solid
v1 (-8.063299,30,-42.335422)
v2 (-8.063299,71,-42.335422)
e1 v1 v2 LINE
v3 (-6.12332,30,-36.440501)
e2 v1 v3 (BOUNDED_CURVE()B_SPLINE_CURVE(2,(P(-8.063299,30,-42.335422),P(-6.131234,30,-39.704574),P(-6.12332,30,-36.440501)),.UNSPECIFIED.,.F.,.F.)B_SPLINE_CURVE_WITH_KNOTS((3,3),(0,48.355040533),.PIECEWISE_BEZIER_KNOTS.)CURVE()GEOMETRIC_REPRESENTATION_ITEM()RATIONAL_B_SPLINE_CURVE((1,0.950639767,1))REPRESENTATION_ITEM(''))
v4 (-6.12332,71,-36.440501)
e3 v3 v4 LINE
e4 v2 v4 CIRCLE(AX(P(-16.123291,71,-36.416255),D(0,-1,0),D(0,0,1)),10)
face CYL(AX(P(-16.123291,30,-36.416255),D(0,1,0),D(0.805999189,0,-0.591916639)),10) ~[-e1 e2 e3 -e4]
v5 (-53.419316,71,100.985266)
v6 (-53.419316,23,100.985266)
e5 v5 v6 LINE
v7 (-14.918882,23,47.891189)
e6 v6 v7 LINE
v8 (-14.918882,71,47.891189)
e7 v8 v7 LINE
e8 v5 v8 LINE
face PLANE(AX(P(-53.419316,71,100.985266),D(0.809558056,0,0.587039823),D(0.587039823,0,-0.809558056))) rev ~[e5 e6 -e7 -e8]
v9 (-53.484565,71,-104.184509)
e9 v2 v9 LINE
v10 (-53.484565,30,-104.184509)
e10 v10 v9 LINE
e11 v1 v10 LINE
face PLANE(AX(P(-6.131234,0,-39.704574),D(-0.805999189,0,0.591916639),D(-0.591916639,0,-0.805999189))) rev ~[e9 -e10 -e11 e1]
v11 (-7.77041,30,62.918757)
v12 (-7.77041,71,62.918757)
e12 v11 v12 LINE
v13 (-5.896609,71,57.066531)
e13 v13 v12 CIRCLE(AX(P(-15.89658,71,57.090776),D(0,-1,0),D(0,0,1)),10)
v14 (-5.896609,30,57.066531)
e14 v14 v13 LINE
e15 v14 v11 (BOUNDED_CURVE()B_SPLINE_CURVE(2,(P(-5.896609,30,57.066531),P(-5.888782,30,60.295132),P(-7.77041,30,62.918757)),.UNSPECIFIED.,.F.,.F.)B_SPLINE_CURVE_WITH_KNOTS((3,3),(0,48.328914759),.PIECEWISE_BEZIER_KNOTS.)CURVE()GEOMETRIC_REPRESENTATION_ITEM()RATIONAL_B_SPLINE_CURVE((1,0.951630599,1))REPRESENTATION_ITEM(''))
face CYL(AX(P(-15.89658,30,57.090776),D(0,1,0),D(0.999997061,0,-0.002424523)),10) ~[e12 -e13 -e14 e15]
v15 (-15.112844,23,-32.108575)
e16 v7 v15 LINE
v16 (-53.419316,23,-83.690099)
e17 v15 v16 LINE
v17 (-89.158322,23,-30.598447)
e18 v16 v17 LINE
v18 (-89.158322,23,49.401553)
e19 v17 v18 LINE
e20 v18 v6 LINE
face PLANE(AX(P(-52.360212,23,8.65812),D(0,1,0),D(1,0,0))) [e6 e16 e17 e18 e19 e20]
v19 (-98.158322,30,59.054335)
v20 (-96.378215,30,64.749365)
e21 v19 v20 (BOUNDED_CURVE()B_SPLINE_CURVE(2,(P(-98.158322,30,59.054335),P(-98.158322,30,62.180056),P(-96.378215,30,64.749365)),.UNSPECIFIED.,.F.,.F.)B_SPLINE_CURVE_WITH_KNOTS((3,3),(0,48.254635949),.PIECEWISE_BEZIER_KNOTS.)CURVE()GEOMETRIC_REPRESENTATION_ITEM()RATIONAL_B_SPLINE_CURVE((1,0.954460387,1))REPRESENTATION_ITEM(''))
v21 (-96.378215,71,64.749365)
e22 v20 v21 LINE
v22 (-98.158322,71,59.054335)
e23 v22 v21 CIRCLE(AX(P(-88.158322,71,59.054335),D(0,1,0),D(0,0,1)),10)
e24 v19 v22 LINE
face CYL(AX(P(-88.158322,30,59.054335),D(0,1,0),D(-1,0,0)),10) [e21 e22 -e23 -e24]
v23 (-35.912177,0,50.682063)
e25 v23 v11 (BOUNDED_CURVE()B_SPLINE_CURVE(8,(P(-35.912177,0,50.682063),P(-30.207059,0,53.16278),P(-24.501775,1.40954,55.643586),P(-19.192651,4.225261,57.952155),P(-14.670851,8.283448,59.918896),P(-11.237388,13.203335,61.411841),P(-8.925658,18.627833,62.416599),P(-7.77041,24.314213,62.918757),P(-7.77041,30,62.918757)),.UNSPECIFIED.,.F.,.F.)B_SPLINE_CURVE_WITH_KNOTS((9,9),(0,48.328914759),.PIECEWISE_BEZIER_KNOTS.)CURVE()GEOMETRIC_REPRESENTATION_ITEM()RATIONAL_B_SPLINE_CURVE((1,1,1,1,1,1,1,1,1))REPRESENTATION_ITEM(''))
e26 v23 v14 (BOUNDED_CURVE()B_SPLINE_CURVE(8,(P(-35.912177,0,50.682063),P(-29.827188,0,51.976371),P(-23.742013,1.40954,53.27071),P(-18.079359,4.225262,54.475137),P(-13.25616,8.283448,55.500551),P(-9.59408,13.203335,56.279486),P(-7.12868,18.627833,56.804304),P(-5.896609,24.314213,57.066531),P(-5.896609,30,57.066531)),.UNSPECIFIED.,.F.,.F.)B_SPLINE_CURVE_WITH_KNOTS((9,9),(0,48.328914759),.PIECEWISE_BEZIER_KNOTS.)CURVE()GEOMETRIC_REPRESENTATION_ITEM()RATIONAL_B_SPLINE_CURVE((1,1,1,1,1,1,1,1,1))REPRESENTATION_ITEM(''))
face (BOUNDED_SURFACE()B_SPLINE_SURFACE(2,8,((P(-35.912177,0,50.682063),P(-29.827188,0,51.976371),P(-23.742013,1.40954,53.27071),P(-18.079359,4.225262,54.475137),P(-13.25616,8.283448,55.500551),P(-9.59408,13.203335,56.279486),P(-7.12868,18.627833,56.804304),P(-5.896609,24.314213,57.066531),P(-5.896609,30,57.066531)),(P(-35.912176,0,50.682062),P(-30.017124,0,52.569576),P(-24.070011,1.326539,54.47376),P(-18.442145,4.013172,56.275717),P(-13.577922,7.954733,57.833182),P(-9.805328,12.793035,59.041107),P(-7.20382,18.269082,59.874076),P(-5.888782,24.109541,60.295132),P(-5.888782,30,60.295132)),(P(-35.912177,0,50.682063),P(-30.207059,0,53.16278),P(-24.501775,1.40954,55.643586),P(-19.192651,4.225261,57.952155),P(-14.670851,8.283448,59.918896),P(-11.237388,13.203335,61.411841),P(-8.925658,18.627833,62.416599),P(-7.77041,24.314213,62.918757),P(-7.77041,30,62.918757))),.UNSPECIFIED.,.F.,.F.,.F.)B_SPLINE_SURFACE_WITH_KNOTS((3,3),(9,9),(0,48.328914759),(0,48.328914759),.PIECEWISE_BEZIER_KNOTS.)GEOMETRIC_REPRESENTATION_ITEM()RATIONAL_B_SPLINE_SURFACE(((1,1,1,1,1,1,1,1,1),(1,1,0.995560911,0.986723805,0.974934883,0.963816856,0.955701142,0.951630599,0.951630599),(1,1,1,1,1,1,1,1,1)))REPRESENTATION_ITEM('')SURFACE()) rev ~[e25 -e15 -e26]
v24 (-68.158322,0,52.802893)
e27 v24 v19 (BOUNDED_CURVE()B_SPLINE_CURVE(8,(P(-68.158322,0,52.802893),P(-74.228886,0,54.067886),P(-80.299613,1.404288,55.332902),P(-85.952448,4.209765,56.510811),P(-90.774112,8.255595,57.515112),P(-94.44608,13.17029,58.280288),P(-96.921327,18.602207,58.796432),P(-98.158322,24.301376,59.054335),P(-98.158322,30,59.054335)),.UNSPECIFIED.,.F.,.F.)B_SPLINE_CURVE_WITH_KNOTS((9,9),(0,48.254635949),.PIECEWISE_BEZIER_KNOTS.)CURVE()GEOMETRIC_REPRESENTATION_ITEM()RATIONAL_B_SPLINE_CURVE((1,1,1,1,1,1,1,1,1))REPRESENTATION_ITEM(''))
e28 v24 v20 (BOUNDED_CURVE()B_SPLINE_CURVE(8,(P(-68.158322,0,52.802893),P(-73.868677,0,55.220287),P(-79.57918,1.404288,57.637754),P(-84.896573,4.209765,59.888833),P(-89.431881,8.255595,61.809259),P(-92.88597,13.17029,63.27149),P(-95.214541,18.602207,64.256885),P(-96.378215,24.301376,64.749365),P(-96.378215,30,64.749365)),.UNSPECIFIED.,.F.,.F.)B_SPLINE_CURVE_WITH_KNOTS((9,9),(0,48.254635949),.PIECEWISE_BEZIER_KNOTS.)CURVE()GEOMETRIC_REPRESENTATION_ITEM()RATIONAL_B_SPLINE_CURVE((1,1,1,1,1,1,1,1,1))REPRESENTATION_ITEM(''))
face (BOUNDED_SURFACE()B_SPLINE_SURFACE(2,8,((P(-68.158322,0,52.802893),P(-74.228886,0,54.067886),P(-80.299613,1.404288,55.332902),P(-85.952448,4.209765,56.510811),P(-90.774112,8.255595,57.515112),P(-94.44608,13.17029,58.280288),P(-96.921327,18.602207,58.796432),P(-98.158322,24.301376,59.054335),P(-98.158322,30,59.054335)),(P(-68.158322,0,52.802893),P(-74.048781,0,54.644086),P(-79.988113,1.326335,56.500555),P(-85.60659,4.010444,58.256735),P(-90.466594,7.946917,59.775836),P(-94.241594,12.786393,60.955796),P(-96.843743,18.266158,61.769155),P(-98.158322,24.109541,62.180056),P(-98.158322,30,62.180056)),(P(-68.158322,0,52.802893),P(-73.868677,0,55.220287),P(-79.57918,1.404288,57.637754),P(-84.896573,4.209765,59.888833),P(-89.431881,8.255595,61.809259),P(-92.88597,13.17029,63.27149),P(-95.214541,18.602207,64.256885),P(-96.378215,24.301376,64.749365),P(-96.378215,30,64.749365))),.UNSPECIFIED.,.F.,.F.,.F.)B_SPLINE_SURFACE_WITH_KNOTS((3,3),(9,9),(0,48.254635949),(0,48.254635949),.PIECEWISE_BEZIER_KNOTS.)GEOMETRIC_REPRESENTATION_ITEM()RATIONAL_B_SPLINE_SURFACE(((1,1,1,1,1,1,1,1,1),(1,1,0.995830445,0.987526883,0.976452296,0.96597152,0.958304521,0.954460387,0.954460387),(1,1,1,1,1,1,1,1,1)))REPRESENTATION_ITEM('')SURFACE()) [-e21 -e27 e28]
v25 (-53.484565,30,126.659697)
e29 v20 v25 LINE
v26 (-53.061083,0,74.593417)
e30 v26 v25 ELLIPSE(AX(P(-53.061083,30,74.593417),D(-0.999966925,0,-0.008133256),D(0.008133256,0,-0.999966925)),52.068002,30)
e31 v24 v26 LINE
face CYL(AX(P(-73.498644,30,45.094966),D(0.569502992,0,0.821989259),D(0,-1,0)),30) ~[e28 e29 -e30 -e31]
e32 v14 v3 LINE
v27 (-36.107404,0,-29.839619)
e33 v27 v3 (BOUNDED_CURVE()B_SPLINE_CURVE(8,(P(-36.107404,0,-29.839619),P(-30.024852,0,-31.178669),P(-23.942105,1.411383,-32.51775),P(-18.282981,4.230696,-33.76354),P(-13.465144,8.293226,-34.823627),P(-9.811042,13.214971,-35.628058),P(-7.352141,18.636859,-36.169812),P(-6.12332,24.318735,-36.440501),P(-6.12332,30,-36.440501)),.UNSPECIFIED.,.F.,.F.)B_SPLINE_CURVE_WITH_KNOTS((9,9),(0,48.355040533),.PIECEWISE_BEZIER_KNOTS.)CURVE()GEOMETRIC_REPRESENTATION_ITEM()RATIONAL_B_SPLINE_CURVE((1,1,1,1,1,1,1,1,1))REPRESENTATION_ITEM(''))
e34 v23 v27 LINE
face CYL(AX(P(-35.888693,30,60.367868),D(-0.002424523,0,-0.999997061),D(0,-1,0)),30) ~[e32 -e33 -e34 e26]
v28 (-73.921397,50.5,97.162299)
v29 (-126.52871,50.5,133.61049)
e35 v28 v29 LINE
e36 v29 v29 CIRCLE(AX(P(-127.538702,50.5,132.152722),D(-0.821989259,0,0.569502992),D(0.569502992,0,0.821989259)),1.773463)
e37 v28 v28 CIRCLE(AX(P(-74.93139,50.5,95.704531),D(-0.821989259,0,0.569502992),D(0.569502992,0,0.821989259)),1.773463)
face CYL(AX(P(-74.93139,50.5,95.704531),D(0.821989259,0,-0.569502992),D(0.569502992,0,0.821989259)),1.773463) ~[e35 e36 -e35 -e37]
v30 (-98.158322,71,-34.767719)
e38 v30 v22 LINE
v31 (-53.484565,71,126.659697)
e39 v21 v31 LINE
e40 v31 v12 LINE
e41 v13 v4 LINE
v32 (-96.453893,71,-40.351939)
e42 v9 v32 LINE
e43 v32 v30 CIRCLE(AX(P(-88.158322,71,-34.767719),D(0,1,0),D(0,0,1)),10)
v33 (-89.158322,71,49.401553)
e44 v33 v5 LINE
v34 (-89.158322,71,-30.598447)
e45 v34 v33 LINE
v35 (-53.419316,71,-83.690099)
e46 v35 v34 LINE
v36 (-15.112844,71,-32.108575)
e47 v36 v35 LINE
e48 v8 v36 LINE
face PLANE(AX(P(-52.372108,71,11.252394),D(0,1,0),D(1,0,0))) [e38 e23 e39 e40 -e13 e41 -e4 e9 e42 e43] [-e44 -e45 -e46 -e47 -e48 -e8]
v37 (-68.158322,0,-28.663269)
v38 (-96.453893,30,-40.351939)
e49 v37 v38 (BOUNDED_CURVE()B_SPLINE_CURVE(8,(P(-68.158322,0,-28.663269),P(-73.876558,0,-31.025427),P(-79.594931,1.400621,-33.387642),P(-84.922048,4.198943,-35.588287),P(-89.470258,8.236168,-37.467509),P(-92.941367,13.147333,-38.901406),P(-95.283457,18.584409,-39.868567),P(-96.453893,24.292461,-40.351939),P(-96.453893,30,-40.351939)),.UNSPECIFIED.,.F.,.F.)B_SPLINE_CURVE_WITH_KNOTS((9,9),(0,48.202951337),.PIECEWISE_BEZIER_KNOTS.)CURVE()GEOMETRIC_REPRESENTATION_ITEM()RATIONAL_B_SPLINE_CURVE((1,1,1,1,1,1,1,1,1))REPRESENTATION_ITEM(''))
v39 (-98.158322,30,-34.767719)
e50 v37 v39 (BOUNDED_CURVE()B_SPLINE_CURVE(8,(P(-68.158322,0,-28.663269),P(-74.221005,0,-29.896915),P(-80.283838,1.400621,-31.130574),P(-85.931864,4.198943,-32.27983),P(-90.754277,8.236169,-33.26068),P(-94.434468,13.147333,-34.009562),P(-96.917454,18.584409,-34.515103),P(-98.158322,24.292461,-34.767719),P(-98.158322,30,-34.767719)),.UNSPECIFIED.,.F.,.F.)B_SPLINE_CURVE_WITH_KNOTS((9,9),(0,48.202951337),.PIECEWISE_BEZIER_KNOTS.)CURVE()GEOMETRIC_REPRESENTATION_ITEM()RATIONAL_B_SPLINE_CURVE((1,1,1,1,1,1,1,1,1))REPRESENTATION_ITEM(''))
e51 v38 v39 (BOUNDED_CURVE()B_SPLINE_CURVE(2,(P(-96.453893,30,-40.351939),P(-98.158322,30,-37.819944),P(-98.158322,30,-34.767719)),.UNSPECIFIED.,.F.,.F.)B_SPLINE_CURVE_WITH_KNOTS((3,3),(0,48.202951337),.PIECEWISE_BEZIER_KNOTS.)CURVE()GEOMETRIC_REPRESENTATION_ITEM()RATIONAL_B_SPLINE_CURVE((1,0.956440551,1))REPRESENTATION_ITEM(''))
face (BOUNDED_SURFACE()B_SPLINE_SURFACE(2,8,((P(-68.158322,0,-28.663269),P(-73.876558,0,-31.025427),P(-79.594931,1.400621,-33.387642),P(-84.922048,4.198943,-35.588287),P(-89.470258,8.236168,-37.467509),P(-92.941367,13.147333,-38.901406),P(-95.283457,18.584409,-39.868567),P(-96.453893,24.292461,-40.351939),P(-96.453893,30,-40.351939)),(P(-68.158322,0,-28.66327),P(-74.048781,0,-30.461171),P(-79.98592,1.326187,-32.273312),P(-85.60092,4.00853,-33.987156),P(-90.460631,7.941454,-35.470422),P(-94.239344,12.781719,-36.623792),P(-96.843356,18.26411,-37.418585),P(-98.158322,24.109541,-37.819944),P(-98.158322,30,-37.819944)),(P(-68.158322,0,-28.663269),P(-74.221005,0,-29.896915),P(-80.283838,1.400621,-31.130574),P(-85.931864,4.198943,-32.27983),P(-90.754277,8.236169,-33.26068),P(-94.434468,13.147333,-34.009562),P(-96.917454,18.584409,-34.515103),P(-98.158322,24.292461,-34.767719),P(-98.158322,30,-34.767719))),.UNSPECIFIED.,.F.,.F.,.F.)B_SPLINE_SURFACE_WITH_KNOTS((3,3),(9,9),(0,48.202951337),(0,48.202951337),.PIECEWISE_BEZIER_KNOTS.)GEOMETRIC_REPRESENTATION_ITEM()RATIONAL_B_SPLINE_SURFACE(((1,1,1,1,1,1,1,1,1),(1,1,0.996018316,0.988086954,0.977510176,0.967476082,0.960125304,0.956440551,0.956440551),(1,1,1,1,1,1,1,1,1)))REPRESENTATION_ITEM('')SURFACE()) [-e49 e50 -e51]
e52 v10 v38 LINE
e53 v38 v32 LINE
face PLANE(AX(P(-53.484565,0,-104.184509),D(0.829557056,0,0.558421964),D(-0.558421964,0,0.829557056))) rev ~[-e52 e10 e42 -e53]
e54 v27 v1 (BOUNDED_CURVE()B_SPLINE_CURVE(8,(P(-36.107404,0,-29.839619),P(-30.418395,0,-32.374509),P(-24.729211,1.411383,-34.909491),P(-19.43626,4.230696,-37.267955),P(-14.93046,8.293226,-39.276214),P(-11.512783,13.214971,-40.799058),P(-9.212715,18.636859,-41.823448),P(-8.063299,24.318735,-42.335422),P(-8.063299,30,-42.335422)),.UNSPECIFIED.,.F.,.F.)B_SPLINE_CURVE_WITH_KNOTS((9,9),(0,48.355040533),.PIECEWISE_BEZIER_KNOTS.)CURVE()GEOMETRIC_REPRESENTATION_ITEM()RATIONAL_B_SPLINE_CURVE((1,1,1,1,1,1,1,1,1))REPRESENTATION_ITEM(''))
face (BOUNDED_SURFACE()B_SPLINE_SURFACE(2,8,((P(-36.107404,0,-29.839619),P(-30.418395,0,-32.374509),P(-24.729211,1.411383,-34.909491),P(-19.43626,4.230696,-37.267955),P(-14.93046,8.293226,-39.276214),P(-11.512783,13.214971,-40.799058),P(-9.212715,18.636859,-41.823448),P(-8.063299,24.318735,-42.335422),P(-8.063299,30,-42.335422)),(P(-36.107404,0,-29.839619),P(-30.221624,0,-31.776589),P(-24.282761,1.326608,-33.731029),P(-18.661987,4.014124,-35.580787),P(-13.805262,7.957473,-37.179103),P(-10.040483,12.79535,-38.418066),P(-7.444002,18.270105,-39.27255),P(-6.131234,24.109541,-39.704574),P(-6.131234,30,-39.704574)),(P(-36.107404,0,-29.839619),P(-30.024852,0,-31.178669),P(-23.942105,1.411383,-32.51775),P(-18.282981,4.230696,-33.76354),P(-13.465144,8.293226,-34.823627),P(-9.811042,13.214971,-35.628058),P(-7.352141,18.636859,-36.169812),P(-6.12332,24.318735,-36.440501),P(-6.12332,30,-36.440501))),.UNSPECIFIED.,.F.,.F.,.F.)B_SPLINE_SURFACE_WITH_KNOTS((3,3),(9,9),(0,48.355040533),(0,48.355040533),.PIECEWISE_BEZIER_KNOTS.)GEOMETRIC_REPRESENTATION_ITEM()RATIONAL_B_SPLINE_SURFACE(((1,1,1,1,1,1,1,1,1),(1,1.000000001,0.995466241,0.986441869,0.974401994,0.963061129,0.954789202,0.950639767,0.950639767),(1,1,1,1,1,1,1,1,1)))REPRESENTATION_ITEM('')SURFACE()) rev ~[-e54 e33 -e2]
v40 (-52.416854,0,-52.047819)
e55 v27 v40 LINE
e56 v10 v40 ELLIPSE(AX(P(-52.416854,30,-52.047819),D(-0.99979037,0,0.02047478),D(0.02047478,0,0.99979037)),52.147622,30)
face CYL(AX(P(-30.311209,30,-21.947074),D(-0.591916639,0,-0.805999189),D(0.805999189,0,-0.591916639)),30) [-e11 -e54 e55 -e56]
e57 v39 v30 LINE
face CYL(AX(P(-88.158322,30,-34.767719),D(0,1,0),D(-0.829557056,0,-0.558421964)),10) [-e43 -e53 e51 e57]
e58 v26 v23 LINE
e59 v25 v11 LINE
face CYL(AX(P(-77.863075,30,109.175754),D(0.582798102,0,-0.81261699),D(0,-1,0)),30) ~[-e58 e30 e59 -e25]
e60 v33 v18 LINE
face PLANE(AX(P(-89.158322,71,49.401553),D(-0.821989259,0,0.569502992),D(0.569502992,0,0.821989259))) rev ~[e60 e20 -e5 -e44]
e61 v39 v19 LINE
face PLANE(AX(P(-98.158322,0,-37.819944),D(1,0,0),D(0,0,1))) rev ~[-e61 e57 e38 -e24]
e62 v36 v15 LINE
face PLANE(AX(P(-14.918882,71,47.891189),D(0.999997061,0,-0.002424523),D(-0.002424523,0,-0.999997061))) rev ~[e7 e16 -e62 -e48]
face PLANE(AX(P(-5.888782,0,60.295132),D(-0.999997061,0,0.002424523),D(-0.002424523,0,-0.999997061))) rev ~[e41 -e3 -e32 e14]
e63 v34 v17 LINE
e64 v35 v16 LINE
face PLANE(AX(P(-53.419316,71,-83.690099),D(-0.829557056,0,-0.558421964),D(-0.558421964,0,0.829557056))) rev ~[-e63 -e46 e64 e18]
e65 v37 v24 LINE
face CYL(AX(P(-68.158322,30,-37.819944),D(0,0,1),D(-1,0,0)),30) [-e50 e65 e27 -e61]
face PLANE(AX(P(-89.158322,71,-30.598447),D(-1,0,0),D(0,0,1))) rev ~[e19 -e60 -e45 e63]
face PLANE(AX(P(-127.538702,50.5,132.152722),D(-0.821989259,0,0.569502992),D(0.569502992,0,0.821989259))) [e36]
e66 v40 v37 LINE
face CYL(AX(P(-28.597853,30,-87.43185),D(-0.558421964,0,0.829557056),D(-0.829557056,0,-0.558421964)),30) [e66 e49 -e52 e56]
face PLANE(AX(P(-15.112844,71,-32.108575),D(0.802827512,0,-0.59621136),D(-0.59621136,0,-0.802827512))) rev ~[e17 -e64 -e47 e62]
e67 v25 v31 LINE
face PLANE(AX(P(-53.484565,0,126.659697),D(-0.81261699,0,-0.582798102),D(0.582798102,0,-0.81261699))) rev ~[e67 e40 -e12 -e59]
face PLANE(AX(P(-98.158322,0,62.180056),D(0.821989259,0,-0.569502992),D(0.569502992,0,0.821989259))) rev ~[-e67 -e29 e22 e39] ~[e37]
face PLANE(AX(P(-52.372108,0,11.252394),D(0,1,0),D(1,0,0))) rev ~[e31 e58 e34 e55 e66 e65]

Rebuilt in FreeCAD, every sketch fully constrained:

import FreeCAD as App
import Part
import Sketcher
from FreeCAD import Vector


def edges_at(feature, points):
    """Names of the edges that pass closest to the given points."""
    edges = feature.Shape.Edges
    near = lambda p: min(range(len(edges)), key=lambda i: edges[i].distToShape(Part.Vertex(*p))[0])
    return sorted({f"Edge{near(p) + 1}" for p in points})

doc = App.newDocument("Part")
body = doc.addObject("PartDesign::Body", "Body")

# Sketch on XZ plane
sketch1 = body.newObject("Sketcher::SketchObject", "Sketch")
sketch1.AttachmentSupport = (doc.getObject("XZ_Plane"), [""])
sketch1.MapMode = "FlatFace"
sketch1.addGeometry([
    Part.LineSegment(Vector(-53.484565, -104.184509, 0), Vector(-98.158322, -37.819944, 0)),  # 0
    Part.LineSegment(Vector(-98.158322, -37.819944, 0), Vector(-98.158322, 62.180056, 0)),  # 1
    Part.LineSegment(Vector(-98.158322, 62.180056, 0), Vector(-53.484565, 126.659697, 0)),  # 2
    Part.LineSegment(Vector(-53.484565, 126.659697, 0), Vector(-5.888782, 60.295132, 0)),  # 3
    Part.LineSegment(Vector(-5.888782, 60.295132, 0), Vector(-6.131234, -39.704574, 0)),  # 4
    Part.LineSegment(Vector(-6.131234, -39.704574, 0), Vector(-53.484565, -104.184509, 0)),  # 5
], False)
sketch1.addConstraint([
    Sketcher.Constraint("Coincident", 0, 2, 1, 1),
    Sketcher.Constraint("Coincident", 1, 2, 2, 1),
    Sketcher.Constraint("Coincident", 2, 2, 3, 1),
    Sketcher.Constraint("Coincident", 3, 2, 4, 1),
    Sketcher.Constraint("Coincident", 4, 2, 5, 1),
    Sketcher.Constraint("Coincident", 5, 2, 0, 1),
    Sketcher.Constraint("Vertical", 1),
    Sketcher.Constraint("Vertical", 2, 2, 5, 2),
    Sketcher.Constraint("Equal", 0, 5),
    Sketcher.Constraint("DistanceY", 1, 1, 1, 2, 100.0),
    Sketcher.Constraint("Distance", 0, 80.0),
    Sketcher.Constraint("Distance", 4, 100.0),
    Sketcher.Constraint("Distance", 2, 78.443411),
    Sketcher.Constraint("DistanceX", 3, 2, -1, 1, 5.888782),
    Sketcher.Constraint("DistanceY", 5, 2, -1, 1, 104.184509),
    Sketcher.Constraint("DistanceY", 1, 2, 2, 2, 64.479641),
    Sketcher.Constraint("DistanceX", 1, 2, 3, 2, 92.269541),
    Sketcher.Constraint("DistanceX", 0, 2, 4, 2, 92.027088),
])
pad1 = body.newObject("PartDesign::Pad", "Pad")
pad1.Profile = sketch1
pad1.Length = 71
pad1.Reversed = True

# Sketch on XZ plane
sketch2 = body.newObject("Sketcher::SketchObject", "Sketch001")
sketch2.AttachmentSupport = (doc.getObject("XZ_Plane"), [""])
sketch2.MapMode = "FlatFace"
sketch2.AttachmentOffset = App.Placement(Vector(0, 0, -71), App.Rotation())
sketch2.addGeometry([
    Part.LineSegment(Vector(-53.419316, -83.690099, 0), Vector(-89.158322, -30.598447, 0)),  # 0
    Part.LineSegment(Vector(-89.158322, -30.598447, 0), Vector(-89.158322, 49.401553, 0)),  # 1
    Part.LineSegment(Vector(-89.158322, 49.401553, 0), Vector(-53.419316, 100.985266, 0)),  # 2
    Part.LineSegment(Vector(-53.419316, 100.985266, 0), Vector(-14.918882, 47.891189, 0)),  # 3
    Part.LineSegment(Vector(-14.918882, 47.891189, 0), Vector(-15.112844, -32.108575, 0)),  # 4
    Part.LineSegment(Vector(-15.112844, -32.108575, 0), Vector(-53.419316, -83.690099, 0)),  # 5
], False)
sketch2.addConstraint([
    Sketcher.Constraint("Coincident", 0, 2, 1, 1),
    Sketcher.Constraint("Coincident", 1, 2, 2, 1),
    Sketcher.Constraint("Coincident", 2, 2, 3, 1),
    Sketcher.Constraint("Coincident", 3, 2, 4, 1),
    Sketcher.Constraint("Coincident", 4, 2, 5, 1),
    Sketcher.Constraint("Coincident", 5, 2, 0, 1),
    Sketcher.Constraint("Vertical", 1),
    Sketcher.Constraint("Vertical", 2, 2, 5, 2),
    Sketcher.Constraint("DistanceY", 1, 1, 1, 2, 80.0),
    Sketcher.Constraint("Distance", 0, 64.0),
    Sketcher.Constraint("Distance", 4, 80.0),
    Sketcher.Constraint("DistanceY", 5, 2, -1, 1, 83.690099),
    Sketcher.Constraint("Distance", 2, 62.754729),
    Sketcher.Constraint("Distance", 5, 64.24982),
    Sketcher.Constraint("DistanceX", 3, 2, -1, 1, 14.918882),
    Sketcher.Constraint("DistanceY", -1, 1, 3, 2, 47.891189),
    Sketcher.Constraint("DistanceX", 1, 2, 3, 2, 74.23944),
    Sketcher.Constraint("DistanceX", 0, 2, 4, 2, 74.045479),
])
pocket1 = body.newObject("PartDesign::Pocket", "Pocket")
pocket1.Profile = sketch2
pocket1.Length = 48
pocket1.Reversed = True
doc.recompute()

fillet = body.newObject("PartDesign::Fillet", "Fillet")
fillet.Base = (pocket1, edges_at(pocket1, [
    (-6.01, 0, 10.295),
    (-29.687, 0, 93.477),
    (-75.821, 0, 94.42),
    (-98.158, 0, 12.18),
    (-75.821, 0, -71.002),
    (-29.808, 0, -71.945),
]))
fillet.Radius = 30
doc.recompute()

fillet2 = body.newObject("PartDesign::Fillet", "Fillet001")
fillet2.Base = (fillet, edges_at(fillet, [
    (-6.131, 50.5, -39.705),
    (-5.889, 50.5, 60.295),
    (-98.158, 50.5, 62.18),
    (-98.158, 50.5, -37.82),
    (-15.181, 8.52, -36.726),
    (-14.947, 8.526, 57.395),
    (-89.134, 8.552, -35.066),
    (-89.123, 8.541, 59.356),
]))
fillet2.Radius = 10

# Sketch on an angled plane
sketch3 = body.newObject("Sketcher::SketchObject", "Sketch002")
sketch3.Placement = App.Placement(Vector(-95.430334, 0, 66.117483), App.Rotation(Vector(0.569502992, 0, 0.821989259), Vector(0, 1, 0), Vector(-0.821989259, 0, 0.569502992), "ZXY"))
sketch3.addGeometry(Part.Circle(Vector(35.994446, 50.5, 0), Vector(0, 0, 1), 1.773463), False)
sketch3.addConstraint([
    Sketcher.Constraint("DistanceY", -1, 1, 0, 3, 50.5),
    Sketcher.Constraint("Diameter", 0, 3.546927),
    Sketcher.Constraint("DistanceX", -1, 1, 0, 3, 35.994446),
])
pad2 = body.newObject("PartDesign::Pad", "Pad001")
pad2.Profile = sketch3
pad2.Length = 64

doc.recompute()
